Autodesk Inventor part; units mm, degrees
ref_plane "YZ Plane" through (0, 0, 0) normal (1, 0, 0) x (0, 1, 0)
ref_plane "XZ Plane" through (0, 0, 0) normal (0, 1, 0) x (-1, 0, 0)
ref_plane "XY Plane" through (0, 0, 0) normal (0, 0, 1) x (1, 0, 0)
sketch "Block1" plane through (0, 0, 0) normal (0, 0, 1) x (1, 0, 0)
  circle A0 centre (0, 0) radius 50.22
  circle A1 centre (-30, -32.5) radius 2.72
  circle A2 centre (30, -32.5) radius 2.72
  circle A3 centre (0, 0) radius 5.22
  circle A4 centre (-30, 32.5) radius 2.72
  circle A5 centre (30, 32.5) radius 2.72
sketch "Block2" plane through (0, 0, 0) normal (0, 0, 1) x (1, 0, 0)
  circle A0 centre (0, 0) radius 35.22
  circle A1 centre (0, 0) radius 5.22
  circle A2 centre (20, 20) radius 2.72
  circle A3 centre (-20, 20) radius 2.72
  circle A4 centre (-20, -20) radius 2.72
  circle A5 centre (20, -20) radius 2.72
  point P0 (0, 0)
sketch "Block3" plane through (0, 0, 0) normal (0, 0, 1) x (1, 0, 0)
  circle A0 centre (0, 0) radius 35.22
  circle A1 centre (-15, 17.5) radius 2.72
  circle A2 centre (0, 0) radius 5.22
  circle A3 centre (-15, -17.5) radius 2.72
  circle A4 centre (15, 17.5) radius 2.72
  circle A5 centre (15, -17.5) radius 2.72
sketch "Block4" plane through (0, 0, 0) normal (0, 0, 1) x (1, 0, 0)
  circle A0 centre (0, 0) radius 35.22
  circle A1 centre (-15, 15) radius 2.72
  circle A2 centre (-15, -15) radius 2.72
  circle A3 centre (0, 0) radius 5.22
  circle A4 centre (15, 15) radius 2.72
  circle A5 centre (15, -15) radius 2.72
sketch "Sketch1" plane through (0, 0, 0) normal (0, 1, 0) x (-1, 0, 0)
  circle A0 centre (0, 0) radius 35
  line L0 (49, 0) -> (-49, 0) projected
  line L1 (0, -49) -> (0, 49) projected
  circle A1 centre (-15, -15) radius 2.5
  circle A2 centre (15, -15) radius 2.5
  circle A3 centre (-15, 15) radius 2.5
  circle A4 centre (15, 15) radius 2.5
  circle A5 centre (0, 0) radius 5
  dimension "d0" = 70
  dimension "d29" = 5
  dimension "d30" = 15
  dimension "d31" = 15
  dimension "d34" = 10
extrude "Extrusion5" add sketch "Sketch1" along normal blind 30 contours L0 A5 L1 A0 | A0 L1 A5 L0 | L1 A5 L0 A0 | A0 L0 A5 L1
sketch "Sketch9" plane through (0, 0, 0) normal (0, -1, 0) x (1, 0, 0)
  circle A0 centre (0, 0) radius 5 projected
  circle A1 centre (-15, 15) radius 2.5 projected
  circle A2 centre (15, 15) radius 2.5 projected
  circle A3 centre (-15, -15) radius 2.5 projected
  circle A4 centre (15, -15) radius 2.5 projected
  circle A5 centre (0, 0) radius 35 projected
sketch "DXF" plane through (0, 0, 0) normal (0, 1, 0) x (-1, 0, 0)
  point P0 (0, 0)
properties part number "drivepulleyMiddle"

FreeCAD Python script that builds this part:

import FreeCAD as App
import Part
import Sketcher

V = App.Vector
Q = App.Units.Quantity

doc = App.newDocument("Part")
body = doc.addObject("PartDesign::Body", "Body")

sketch1 = body.newObject("Sketcher::SketchObject", "Sketch")
sketch1.AttachmentSupport = (doc.getObject("XZ_Plane"), [""])
sketch1.MapMode = "FlatFace"
sketch1.addGeometry([
    Part.Circle(V(0, 0, 0), V(0, 0, 1), 35),
    Part.Circle(V(0, 0, 0), V(0, 0, 1), 5),
    Part.Circle(V(-15, 15, 0), V(0, 0, 1), 2.5),
    Part.Circle(V(-15, -15, 0), V(0, 0, 1), 2.5),
    Part.Circle(V(15, 15, 0), V(0, 0, 1), 2.5),
    Part.Circle(V(15, -15, 0), V(0, 0, 1), 2.5),
], False)
sketch1.addConstraint([
    Sketcher.Constraint("Coincident", 0, 3, -1, 1),
    Sketcher.Constraint("Coincident", 1, 3, -1, 1),
    Sketcher.Constraint("Equal", 2, 3),
    Sketcher.Constraint("Equal", 3, 4),
    Sketcher.Constraint("Equal", 4, 5),
    Sketcher.Constraint("Symmetric", 3, 3, 4, 3, -1, 1),
    Sketcher.Constraint("Symmetric", 2, 3, 5, 3, -1, 1),
    Sketcher.Constraint("Symmetric", 2, 3, 4, 3, -2),
    Sketcher.Constraint("Diameter", 0, Q("70 mm")),
    Sketcher.Constraint("Diameter", 1, Q("10 mm")),
    Sketcher.Constraint("Diameter", 2, Q("5 mm")),
    Sketcher.Constraint("DistanceX", 2, 3, -1, 1, Q("15 mm")),
    Sketcher.Constraint("DistanceY", -1, 1, 2, 3, Q("15 mm")),
])
pad1 = body.newObject("PartDesign::Pad", "Pad")
pad1.Profile = sketch1
pad1.Length = 30
pad1.Reversed = True

doc.recompute()
